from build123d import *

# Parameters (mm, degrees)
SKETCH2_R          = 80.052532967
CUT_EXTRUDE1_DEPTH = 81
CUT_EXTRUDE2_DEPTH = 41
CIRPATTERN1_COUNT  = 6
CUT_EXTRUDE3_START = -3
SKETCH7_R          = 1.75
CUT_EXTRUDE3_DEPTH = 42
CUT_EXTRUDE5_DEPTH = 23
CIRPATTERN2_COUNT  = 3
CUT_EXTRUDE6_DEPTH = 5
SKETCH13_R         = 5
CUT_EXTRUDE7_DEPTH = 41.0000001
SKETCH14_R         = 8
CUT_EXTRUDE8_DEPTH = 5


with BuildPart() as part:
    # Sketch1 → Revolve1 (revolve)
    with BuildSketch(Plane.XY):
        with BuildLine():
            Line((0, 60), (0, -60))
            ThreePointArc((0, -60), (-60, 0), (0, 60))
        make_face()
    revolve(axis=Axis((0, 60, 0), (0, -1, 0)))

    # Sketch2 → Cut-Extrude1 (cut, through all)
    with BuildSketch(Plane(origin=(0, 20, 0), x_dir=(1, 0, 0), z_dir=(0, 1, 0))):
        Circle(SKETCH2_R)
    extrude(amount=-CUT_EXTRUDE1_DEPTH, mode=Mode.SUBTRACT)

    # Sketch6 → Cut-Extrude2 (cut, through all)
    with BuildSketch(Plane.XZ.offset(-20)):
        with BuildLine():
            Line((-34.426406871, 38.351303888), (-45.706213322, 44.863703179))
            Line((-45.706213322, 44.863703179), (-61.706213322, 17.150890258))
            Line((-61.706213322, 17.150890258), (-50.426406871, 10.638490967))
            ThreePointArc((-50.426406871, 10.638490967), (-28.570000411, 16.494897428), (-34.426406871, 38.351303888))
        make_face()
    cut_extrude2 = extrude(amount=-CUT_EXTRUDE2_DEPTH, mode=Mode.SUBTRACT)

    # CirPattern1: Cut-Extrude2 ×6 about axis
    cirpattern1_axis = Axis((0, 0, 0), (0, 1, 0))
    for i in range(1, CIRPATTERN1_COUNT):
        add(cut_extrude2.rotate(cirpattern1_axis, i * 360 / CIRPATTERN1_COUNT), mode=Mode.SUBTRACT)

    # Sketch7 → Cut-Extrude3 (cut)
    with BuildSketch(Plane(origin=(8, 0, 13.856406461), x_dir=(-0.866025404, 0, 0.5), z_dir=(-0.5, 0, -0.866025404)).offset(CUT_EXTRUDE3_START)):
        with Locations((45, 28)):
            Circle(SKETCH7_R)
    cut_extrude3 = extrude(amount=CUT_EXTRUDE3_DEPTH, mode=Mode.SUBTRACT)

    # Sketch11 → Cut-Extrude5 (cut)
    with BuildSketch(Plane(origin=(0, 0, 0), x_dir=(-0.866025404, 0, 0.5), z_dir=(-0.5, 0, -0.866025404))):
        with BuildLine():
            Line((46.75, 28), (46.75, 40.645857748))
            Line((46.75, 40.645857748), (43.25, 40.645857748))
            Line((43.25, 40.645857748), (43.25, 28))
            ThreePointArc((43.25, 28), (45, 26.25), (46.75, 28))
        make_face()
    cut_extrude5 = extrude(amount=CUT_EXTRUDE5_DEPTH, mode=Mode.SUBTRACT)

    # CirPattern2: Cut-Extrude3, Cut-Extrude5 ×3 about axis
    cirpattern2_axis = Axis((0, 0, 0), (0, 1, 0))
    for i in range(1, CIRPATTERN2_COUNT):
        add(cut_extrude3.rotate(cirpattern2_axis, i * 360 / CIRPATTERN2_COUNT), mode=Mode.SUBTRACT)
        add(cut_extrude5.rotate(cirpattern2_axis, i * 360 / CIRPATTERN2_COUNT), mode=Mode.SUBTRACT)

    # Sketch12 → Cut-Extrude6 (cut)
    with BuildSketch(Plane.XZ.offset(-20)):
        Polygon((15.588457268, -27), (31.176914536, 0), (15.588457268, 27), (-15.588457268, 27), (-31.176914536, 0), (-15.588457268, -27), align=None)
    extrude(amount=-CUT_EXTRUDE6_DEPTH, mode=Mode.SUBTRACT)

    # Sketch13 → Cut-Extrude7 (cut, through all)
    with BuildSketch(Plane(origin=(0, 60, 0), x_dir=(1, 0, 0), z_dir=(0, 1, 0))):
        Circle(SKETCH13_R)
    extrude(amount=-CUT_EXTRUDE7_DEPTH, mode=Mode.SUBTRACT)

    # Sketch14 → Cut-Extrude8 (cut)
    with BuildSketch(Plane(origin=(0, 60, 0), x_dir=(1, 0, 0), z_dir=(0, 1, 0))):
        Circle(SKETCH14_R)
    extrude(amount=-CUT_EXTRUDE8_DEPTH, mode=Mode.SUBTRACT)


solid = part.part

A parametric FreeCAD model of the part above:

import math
import FreeCAD as App
import Part
import Sketcher
Q = App.Units.Quantity


def add_polygon(sketch, points):
    """Adds a closed chain of lines whose ends are joined by coincident constraints."""
    first, n = sketch.GeometryCount, len(points)
    for a, b in zip(points, points[1:] + points[:1]):
        sketch.addGeometry(Part.LineSegment(App.Vector(*a, 0), App.Vector(*b, 0)), False)
    for i in range(n):
        sketch.addConstraint(Sketcher.Constraint("Coincident", first + i, 2, first + (i + 1) % n, 1))

doc = App.newDocument("Part")
body = doc.addObject("PartDesign::Body", "Body")

# Sketch on XY plane
sketch1 = body.newObject("Sketcher::SketchObject", "Sketch")
sketch1.AttachmentSupport = (doc.getObject("XY_Plane"), [""])
sketch1.MapMode = "FlatFace"
sketch1.addGeometry(Part.LineSegment(App.Vector(0, -60, 0), App.Vector(0, 60, 0)), False)
sketch1.addGeometry(Part.ArcOfCircle(Part.Circle(App.Vector(0, 0, 0), App.Vector(0, 0, 1), 60), math.radians(90), math.radians(270)), False)
sketch1.addConstraint(Sketcher.Constraint("Coincident", 0, 1, 1, 2))
sketch1.addConstraint(Sketcher.Constraint("Coincident", 1, 1, 0, 2))
sketch1.addConstraint(Sketcher.Constraint("Vertical", 0))
sketch1.addConstraint(Sketcher.Constraint("Coincident", 1, 3, -1, 1))
sketch1.addConstraint(Sketcher.Constraint("PointOnObject", 0, 1, -2))
sketch1.addConstraint(Sketcher.Constraint("Radius", 1, 60.0))
revolution = body.newObject("PartDesign::Revolution", "Revolution")
revolution.Profile = sketch1
revolution.ReferenceAxis = (sketch1, ["V_Axis"])
revolution.Angle = 360

# Sketch on XZ plane
sketch2 = body.newObject("Sketcher::SketchObject", "Sketch001")
sketch2.AttachmentSupport = (doc.getObject("XZ_Plane"), [""])
sketch2.MapMode = "FlatFace"
sketch2.AttachmentOffset = App.Placement(App.Vector(0, 0, -20), App.Rotation())
sketch2.addGeometry(Part.Circle(App.Vector(0, 0, 0), App.Vector(0, 0, 1), 80.052533), False)
sketch2.addConstraint(Sketcher.Constraint("Coincident", 0, 3, -1, 1))
sketch2.addConstraint(Sketcher.Constraint("Diameter", 0, 160.105066))
pocket1 = body.newObject("PartDesign::Pocket", "Pocket")
pocket1.Profile = sketch2
pocket1.Type = "ThroughAll"
pocket1.Reversed = True

# Sketch on XZ plane
sketch3 = body.newObject("Sketcher::SketchObject", "Sketch002")
sketch3.AttachmentSupport = (doc.getObject("XZ_Plane"), [""])
sketch3.MapMode = "FlatFace"
sketch3.AttachmentOffset = App.Placement(App.Vector(0, 0, -20), App.Rotation())
sketch3.addGeometry(Part.LineSegment(App.Vector(-34.426407, 38.351304, 0), App.Vector(-45.706213, 44.863703, 0)), False)
sketch3.addGeometry(Part.LineSegment(App.Vector(-45.706213, 44.863703, 0), App.Vector(-61.706213, 17.15089, 0)), False)
sketch3.addGeometry(Part.LineSegment(App.Vector(-61.706213, 17.15089, 0), App.Vector(-50.426407, 10.638491, 0)), False)
sketch3.addGeometry(Part.ArcOfCircle(Part.Circle(App.Vector(-42.426407, 24.494897, 0), App.Vector(0, 0, 1), 16), math.radians(-120), math.radians(60)), False)
sketch3.addConstraint(Sketcher.Constraint("Coincident", 0, 2, 1, 1))
sketch3.addConstraint(Sketcher.Constraint("Coincident", 1, 2, 2, 1))
sketch3.addConstraint(Sketcher.Constraint("Tangent", 2, 2, 3, 1))
sketch3.addConstraint(Sketcher.Constraint("Tangent", 3, 2, 0, 1))
sketch3.addConstraint(Sketcher.Constraint("Perpendicular", 0, 1))
sketch3.addConstraint(Sketcher.Constraint("Perpendicular", 1, 2))
sketch3.addConstraint(Sketcher.Constraint("Radius", 3, 16.0))
sketch3.addConstraint(Sketcher.Constraint("Angle", 0, Q("150 deg")))
sketch3.addConstraint(Sketcher.Constraint("Distance", 0, 13.024799))
sketch3.addConstraint(Sketcher.Constraint("DistanceY", -1, 1, 1, 2, 17.15089))
sketch3.addConstraint(Sketcher.Constraint("DistanceX", 3, 3, -1, 1, 42.426407))
pocket2 = body.newObject("PartDesign::Pocket", "Pocket001")
pocket2.Profile = sketch3
pocket2.Type = "ThroughAll"
doc.recompute()

polarpattern = body.newObject("PartDesign::PolarPattern", "PolarPattern")
polarpattern.Originals = [pocket2]
polarpattern.Axis = (doc.getObject("Y_Axis"), [""])
polarpattern.Angle = 360
polarpattern.Occurrences = 6
body.Tip = polarpattern

# Sketch on an angled plane
sketch4 = body.newObject("Sketcher::SketchObject", "Sketch003")
sketch4.Placement = App.Placement(App.Vector(9.5, 0, 16.454483), App.Rotation(App.Vector(-0.866025404, 0, 0.5), App.Vector(0, 1, 0), App.Vector(-0.5, 0, -0.866025404), "ZXY"))
sketch4.addGeometry(Part.Circle(App.Vector(45, 28, 0), App.Vector(0, 0, 1), 1.75), False)
sketch4.addConstraint(Sketcher.Constraint("Diameter", 0, 3.5))
sketch4.addConstraint(Sketcher.Constraint("DistanceX", -1, 1, 0, 3, 45.0))
sketch4.addConstraint(Sketcher.Constraint("DistanceY", -1, 1, 0, 3, 28.0))
pocket3 = body.newObject("PartDesign::Pocket", "Pocket002")
pocket3.Profile = sketch4
pocket3.Length = 42
pocket3.Reversed = True

# Sketch on an angled plane
sketch5 = body.newObject("Sketcher::SketchObject", "Sketch004")
sketch5.Placement = App.Placement(App.Vector(0, 0, 0), App.Rotation(App.Vector(-0.866025404, 0, 0.5), App.Vector(0, 1, 0), App.Vector(-0.5, 0, -0.866025404), "ZXY"))
sketch5.addGeometry(Part.LineSegment(App.Vector(46.75, 28, 0), App.Vector(46.75, 40.645858, 0)), False)
sketch5.addGeometry(Part.LineSegment(App.Vector(46.75, 40.645858, 0), App.Vector(43.25, 40.645858, 0)), False)
sketch5.addGeometry(Part.LineSegment(App.Vector(43.25, 40.645858, 0), App.Vector(43.25, 28, 0)), False)
sketch5.addGeometry(Part.ArcOfCircle(Part.Circle(App.Vector(45, 28, 0), App.Vector(0, 0, 1), 1.75), math.radians(180), math.radians(360)), False)
sketch5.addConstraint(Sketcher.Constraint("Coincident", 0, 2, 1, 1))
sketch5.addConstraint(Sketcher.Constraint("Coincident", 1, 2, 2, 1))
sketch5.addConstraint(Sketcher.Constraint("Tangent", 2, 2, 3, 1))
sketch5.addConstraint(Sketcher.Constraint("Tangent", 3, 2, 0, 1))
sketch5.addConstraint(Sketcher.Constraint("Vertical", 0))
sketch5.addConstraint(Sketcher.Constraint("Horizontal", 1))
sketch5.addConstraint(Sketcher.Constraint("Vertical", 2))
sketch5.addConstraint(Sketcher.Constraint("Radius", 3, 1.75))
sketch5.addConstraint(Sketcher.Constraint("DistanceX", -1, 1, 3, 3, 45.0))
sketch5.addConstraint(Sketcher.Constraint("DistanceY", -1, 1, 3, 3, 28.0))
sketch5.addConstraint(Sketcher.Constraint("DistanceY", 0, 1, 0, 2, 12.645858))
pocket4 = body.newObject("PartDesign::Pocket", "Pocket003")
pocket4.Profile = sketch5
pocket4.Length = 23
pocket4.Reversed = True
doc.recompute()

polarpattern2 = body.newObject("PartDesign::PolarPattern", "PolarPattern001")
polarpattern2.Originals = [pocket3, pocket4]
polarpattern2.Axis = (doc.getObject("Y_Axis"), [""])
polarpattern2.Angle = 360
polarpattern2.Occurrences = 3
body.Tip = polarpattern2

# Sketch on XZ plane
sketch6 = body.newObject("Sketcher::SketchObject", "Sketch005")
sketch6.AttachmentSupport = (doc.getObject("XZ_Plane"), [""])
sketch6.MapMode = "FlatFace"
sketch6.AttachmentOffset = App.Placement(App.Vector(0, 0, -20), App.Rotation())
add_polygon(sketch6, [(15.588457, -27), (31.176915, 0), (15.588457, 27), (-15.588457, 27), (-31.176915, 0), (-15.588457, -27)])  # lines 0-5
sketch6.addConstraint(Sketcher.Constraint("Horizontal", 2))
sketch6.addConstraint(Sketcher.Constraint("Horizontal", 5))
sketch6.addConstraint(Sketcher.Constraint("Symmetric", 0, 2, 3, 2, -1, 1))
sketch6.addConstraint(Sketcher.Constraint("Symmetric", 1, 2, 4, 2, -1, 1))
sketch6.addConstraint(Sketcher.Constraint("PointOnObject", 0, 2, -1))
sketch6.addConstraint(Sketcher.Constraint("Parallel", 0, 3))
sketch6.addConstraint(Sketcher.Constraint("Vertical", 2, 2, 4, 2))
sketch6.addConstraint(Sketcher.Constraint("Angle", 0, Q("60 deg")))
sketch6.addConstraint(Sketcher.Constraint("DistanceY", -1, 1, 1, 2, 27.0))
sketch6.addConstraint(Sketcher.Constraint("DistanceX", 2, 2, 2, 1, 31.176915))
pocket5 = body.newObject("PartDesign::Pocket", "Pocket004")
pocket5.Profile = sketch6
pocket5.Length = 5

# Sketch on XZ plane
sketch7 = body.newObject("Sketcher::SketchObject", "Sketch006")
sketch7.AttachmentSupport = (doc.getObject("XZ_Plane"), [""])
sketch7.MapMode = "FlatFace"
sketch7.AttachmentOffset = App.Placement(App.Vector(0, 0, -60), App.Rotation())
sketch7.addGeometry(Part.Circle(App.Vector(0, 0, 0), App.Vector(0, 0, 1), 5), False)
sketch7.addConstraint(Sketcher.Constraint("Coincident", 0, 3, -1, 1))
sketch7.addConstraint(Sketcher.Constraint("Diameter", 0, 10.0))
pocket6 = body.newObject("PartDesign::Pocket", "Pocket005")
pocket6.Profile = sketch7
pocket6.Type = "ThroughAll"
pocket6.Reversed = True

# Sketch on XZ plane
sketch8 = body.newObject("Sketcher::SketchObject", "Sketch007")
sketch8.AttachmentSupport = (doc.getObject("XZ_Plane"), [""])
sketch8.MapMode = "FlatFace"
sketch8.AttachmentOffset = App.Placement(App.Vector(0, 0, -60), App.Rotation())
sketch8.addGeometry(Part.Circle(App.Vector(0, 0, 0), App.Vector(0, 0, 1), 8), False)
sketch8.addConstraint(Sketcher.Constraint("Coincident", 0, 3, -1, 1))
sketch8.addConstraint(Sketcher.Constraint("Diameter", 0, 16.0))
pocket7 = body.newObject("PartDesign::Pocket", "Pocket006")
pocket7.Profile = sketch8
pocket7.Length = 5
pocket7.Reversed = True

doc.recompute()
